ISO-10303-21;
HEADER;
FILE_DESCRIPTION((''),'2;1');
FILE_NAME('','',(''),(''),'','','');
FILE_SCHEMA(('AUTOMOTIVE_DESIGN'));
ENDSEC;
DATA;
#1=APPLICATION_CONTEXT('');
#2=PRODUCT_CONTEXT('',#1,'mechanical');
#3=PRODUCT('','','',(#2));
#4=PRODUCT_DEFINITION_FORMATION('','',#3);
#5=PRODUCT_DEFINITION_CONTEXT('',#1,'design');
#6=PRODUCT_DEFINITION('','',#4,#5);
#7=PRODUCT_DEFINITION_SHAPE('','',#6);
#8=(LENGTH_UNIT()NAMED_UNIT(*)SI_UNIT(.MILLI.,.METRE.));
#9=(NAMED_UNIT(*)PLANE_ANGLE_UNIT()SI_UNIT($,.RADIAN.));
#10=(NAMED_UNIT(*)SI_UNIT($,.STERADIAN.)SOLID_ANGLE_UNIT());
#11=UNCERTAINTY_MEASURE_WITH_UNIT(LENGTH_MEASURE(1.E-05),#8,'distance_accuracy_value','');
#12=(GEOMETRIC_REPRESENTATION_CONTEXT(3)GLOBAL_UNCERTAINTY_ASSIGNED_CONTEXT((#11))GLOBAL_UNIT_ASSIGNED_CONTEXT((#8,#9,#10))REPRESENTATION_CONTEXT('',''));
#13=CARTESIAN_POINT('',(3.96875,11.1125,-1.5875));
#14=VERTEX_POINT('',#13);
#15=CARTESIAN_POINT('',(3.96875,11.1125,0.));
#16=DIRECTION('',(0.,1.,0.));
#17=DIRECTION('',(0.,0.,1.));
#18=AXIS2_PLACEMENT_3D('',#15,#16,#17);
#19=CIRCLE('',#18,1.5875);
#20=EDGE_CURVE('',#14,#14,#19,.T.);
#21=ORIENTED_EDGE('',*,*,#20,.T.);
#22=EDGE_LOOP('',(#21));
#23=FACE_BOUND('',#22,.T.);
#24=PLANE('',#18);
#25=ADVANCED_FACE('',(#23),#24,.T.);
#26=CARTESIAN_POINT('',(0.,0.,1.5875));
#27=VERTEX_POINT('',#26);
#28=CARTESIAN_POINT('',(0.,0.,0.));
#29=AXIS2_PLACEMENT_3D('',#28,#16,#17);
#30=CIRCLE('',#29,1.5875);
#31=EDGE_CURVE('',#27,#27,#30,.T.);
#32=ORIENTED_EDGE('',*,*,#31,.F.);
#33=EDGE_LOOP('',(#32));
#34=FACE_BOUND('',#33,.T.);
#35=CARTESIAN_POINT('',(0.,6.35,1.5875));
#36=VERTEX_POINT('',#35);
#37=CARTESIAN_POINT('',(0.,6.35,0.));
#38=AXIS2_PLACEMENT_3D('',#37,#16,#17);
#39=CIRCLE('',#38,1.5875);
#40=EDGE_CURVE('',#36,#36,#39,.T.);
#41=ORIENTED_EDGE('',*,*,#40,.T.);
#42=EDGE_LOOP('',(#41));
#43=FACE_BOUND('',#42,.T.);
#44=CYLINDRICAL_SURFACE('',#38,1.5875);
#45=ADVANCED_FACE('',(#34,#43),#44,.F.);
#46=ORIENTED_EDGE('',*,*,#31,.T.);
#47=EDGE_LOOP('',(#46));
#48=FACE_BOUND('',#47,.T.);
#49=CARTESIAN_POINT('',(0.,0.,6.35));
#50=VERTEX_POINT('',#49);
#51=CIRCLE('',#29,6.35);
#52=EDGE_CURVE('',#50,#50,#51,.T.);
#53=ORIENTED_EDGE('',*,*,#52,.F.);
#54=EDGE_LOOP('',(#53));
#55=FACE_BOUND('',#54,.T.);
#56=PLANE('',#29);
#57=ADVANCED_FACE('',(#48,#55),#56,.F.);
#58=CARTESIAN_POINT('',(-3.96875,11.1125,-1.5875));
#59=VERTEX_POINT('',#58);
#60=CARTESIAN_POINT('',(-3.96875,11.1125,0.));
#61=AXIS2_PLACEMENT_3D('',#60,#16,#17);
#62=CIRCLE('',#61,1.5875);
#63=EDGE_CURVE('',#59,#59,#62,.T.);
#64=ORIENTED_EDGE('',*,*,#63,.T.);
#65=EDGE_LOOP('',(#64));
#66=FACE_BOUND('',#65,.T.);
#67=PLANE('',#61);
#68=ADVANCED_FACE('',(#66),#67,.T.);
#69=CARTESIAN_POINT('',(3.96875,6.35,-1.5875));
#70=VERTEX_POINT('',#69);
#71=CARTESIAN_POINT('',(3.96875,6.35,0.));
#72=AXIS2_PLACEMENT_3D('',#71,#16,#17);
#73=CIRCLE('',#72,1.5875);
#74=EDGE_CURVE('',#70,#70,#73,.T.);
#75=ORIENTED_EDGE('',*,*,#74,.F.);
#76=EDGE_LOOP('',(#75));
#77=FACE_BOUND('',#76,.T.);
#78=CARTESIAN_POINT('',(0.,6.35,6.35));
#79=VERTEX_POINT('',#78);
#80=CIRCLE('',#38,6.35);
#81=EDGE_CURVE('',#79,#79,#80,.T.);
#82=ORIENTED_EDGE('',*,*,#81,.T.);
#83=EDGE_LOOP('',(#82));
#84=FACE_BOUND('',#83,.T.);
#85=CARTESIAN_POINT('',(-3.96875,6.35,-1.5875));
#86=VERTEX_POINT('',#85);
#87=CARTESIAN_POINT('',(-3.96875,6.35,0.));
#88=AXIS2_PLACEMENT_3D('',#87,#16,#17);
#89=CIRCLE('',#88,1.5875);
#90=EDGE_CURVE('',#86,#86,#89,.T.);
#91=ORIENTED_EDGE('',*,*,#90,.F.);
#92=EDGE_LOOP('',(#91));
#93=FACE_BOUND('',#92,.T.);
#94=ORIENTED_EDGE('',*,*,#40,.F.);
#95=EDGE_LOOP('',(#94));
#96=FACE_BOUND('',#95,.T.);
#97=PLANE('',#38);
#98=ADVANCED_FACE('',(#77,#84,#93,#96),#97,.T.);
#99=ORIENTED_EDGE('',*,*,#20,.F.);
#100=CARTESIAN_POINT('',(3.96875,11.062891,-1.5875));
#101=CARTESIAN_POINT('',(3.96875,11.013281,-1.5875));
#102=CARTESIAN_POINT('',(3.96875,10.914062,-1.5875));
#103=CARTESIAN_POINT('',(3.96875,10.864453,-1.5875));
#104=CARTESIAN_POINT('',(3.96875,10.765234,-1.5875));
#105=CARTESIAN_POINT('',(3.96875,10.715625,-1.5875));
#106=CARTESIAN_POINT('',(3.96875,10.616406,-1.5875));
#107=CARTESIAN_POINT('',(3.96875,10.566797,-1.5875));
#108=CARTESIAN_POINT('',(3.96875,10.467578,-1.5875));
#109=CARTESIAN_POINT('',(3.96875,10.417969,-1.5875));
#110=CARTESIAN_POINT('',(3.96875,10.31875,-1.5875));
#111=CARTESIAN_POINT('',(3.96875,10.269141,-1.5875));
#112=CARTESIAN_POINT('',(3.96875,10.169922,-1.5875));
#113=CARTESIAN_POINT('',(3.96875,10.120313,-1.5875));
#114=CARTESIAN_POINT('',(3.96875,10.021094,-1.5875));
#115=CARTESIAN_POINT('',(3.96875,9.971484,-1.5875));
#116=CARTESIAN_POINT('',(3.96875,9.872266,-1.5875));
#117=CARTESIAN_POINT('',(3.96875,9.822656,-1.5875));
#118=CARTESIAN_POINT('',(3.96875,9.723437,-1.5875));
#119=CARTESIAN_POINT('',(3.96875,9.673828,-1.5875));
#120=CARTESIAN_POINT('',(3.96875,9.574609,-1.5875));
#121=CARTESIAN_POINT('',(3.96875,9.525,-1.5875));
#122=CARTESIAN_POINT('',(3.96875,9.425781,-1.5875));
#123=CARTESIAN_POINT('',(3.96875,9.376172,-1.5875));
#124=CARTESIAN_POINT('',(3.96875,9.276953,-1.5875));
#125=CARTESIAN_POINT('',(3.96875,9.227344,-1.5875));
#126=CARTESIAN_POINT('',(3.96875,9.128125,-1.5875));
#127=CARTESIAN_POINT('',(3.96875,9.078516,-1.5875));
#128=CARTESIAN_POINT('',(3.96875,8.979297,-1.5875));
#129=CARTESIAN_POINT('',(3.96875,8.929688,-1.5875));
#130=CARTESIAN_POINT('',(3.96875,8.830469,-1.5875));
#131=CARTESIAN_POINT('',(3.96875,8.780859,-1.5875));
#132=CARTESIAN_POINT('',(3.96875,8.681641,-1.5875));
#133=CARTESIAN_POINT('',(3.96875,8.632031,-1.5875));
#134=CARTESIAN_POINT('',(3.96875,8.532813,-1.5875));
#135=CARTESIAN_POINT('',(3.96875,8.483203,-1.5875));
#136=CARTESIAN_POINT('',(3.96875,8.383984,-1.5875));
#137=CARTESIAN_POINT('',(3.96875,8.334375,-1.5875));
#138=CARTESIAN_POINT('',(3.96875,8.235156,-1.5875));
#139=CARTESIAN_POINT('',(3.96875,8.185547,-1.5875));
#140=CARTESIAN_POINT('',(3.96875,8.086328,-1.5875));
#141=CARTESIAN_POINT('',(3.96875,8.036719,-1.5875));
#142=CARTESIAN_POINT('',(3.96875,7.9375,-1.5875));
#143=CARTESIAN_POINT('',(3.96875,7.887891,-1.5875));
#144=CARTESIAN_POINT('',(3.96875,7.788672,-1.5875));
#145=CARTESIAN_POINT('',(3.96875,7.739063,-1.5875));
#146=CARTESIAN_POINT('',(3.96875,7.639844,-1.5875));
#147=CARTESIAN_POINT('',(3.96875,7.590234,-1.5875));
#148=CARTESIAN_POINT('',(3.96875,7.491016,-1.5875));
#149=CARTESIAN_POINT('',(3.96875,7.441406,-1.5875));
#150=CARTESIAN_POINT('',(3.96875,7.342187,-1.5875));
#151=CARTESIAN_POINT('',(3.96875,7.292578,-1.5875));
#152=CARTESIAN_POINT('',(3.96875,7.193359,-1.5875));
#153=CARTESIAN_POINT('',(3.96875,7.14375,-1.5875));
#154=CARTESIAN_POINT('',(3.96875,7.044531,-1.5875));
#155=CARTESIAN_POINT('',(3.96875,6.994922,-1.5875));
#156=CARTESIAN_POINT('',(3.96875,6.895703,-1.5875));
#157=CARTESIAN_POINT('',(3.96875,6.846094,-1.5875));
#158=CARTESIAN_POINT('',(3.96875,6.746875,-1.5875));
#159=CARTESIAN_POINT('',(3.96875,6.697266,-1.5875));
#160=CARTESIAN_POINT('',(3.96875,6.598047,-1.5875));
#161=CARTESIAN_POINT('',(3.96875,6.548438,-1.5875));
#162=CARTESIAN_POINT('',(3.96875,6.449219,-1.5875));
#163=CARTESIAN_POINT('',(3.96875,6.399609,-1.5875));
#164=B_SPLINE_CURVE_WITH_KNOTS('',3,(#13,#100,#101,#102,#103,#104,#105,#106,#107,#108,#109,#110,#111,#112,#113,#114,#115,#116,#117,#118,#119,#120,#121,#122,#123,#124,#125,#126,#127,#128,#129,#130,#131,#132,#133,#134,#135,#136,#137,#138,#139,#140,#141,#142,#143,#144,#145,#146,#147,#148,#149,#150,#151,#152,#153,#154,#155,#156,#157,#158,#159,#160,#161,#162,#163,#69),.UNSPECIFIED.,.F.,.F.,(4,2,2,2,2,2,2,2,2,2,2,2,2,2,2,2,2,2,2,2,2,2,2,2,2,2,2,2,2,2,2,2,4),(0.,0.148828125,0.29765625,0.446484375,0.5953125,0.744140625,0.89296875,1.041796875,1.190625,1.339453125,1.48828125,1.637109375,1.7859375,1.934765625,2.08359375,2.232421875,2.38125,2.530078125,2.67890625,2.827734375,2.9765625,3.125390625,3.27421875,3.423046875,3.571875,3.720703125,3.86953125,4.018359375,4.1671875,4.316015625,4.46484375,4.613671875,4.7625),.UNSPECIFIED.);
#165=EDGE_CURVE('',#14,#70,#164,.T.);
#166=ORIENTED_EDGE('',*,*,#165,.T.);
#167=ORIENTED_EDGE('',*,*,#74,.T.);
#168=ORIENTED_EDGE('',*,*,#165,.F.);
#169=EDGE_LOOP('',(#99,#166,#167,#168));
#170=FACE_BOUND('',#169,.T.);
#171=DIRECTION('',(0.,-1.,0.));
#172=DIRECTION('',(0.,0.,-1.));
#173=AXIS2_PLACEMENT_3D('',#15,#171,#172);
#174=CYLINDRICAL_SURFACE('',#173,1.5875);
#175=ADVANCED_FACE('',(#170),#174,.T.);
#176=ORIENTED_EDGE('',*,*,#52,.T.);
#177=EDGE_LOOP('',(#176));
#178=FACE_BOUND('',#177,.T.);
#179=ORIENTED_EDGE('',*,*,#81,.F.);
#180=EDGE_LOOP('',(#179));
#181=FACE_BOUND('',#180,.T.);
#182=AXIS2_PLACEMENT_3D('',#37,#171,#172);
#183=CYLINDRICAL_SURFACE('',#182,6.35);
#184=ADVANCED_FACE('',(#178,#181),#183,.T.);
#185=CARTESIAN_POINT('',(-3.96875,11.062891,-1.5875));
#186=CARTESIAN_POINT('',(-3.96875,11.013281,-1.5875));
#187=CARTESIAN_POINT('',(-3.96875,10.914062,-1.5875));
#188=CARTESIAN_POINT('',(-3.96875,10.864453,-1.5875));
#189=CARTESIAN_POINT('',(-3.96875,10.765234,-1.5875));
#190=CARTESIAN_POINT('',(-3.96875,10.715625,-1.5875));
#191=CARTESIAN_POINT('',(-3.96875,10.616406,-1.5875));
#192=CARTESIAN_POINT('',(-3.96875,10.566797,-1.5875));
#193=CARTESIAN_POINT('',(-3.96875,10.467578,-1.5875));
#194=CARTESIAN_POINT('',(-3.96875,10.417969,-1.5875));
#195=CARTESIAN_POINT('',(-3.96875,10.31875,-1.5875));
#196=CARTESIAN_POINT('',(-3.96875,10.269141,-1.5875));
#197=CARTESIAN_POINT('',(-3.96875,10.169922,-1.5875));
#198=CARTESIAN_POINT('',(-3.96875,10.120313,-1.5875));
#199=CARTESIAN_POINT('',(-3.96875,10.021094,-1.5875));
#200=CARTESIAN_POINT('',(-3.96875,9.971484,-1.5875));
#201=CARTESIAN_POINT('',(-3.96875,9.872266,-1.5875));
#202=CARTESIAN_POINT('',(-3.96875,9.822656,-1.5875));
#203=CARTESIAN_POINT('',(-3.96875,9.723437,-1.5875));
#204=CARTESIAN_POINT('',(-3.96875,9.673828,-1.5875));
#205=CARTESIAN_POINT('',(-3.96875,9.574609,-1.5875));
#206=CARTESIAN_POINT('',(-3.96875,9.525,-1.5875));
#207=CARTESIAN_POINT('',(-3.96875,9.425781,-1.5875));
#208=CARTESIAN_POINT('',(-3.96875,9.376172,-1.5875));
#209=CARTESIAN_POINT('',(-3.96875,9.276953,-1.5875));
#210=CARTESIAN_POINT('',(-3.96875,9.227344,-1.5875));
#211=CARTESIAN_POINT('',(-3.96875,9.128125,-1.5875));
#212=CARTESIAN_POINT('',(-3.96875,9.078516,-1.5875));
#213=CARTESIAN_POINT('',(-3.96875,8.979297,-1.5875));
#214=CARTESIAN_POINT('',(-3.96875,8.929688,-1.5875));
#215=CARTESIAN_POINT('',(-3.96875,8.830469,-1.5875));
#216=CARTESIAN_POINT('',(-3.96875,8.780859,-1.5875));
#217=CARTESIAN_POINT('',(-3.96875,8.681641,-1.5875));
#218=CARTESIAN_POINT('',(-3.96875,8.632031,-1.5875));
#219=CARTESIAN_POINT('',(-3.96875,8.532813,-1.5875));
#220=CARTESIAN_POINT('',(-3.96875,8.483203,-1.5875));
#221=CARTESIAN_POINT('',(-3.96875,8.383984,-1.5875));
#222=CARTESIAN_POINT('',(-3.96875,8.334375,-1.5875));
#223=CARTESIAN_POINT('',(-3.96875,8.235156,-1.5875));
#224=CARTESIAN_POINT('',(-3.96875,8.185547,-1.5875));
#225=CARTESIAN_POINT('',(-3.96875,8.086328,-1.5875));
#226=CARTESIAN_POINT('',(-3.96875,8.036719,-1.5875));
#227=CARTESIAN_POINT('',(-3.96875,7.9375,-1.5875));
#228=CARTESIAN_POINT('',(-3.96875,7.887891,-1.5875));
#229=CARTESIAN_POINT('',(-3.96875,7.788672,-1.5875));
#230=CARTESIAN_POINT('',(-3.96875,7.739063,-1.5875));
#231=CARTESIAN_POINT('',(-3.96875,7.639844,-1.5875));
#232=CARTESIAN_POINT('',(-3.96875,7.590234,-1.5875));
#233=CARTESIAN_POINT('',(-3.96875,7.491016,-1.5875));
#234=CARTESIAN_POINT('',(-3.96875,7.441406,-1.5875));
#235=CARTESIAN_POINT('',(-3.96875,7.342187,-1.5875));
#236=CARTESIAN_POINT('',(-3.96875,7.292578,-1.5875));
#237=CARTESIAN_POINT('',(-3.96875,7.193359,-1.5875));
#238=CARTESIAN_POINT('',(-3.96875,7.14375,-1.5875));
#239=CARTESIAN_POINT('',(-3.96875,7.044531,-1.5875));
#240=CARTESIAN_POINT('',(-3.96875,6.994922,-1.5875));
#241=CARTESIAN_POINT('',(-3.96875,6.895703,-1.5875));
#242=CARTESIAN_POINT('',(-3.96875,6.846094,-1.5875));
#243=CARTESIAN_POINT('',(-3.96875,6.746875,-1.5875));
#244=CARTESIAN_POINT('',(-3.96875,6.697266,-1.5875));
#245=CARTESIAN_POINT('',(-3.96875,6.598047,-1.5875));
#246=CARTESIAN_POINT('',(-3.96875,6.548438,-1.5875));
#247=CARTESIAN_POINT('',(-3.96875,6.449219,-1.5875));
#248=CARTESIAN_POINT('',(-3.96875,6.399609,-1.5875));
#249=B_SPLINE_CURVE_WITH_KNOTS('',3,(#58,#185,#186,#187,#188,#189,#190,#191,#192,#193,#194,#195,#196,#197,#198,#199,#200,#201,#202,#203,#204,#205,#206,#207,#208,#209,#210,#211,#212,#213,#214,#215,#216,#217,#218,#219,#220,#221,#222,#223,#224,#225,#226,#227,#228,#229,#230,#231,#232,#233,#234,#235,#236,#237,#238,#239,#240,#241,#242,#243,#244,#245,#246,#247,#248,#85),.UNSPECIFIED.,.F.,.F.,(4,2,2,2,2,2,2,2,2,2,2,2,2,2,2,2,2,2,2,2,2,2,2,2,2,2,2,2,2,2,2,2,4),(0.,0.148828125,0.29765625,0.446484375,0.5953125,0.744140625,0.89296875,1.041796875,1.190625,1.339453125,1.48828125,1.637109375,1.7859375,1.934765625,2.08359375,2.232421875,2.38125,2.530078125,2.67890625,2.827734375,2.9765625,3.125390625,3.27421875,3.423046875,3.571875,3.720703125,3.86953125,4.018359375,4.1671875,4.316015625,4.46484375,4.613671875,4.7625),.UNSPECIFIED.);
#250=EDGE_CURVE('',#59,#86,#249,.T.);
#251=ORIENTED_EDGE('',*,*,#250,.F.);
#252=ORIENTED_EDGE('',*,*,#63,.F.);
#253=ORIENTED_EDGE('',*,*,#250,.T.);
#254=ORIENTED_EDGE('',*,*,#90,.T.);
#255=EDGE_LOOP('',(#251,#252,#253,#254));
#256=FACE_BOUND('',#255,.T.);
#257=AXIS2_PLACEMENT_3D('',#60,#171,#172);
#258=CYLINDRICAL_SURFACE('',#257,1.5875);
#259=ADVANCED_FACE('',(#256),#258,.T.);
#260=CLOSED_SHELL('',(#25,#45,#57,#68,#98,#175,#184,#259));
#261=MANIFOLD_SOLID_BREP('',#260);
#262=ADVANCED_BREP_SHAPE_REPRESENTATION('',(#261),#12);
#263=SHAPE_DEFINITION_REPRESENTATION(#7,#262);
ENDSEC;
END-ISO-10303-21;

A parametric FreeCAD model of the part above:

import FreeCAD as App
import Part
import Sketcher

V = App.Vector
Q = App.Units.Quantity

doc = App.newDocument("Part")
params = doc.addObject("Spreadsheet::Sheet", "Params")
for row, (alias, value) in enumerate([
    ("sketch1_diameter", "0.5 in"),
    ("pad1_length", "0.25 in"),
    ("sketch2_diameter", "0.125 in"),
    ("hole_diameter", "0.125 in"),
    ("sketch3_diameter", "0.125 in"),
    ("pad2_length", "0.1875 in"),
], start=1):
    params.set(f"A{row}", alias)
    params.set(f"B{row}", "=" + value)
    params.setAlias(f"B{row}", alias)

body = doc.addObject("PartDesign::Body", "Body")

# Sketch on XZ plane
sketch1 = body.newObject("Sketcher::SketchObject", "Sketch")
sketch1.AttachmentSupport = (doc.getObject("XZ_Plane"), [""])
sketch1.MapMode = "FlatFace"
sketch1.addGeometry(Part.Circle(V(0, 0, 0), V(0, 0, 1), 6.35), False)
sketch1.addConstraint(Sketcher.Constraint("Coincident", 0, 3, -1, 1))
sketch1.addConstraint(Sketcher.Constraint("Diameter", 0, Q("0.5 in")))
sketch1.setExpression("Constraints[1]", "Params.sketch1_diameter")
pad1 = body.newObject("PartDesign::Pad", "Pad")
pad1.Profile = sketch1
pad1.setExpression("Length", "Params.pad1_length")
pad1.Reversed = True

# Sketch on XZ plane
sketch2 = body.newObject("Sketcher::SketchObject", "Sketch001")
sketch2.AttachmentSupport = (doc.getObject("XZ_Plane"), [""])
sketch2.MapMode = "FlatFace"
sketch2.AttachmentOffset = App.Placement(V(0, 0, -0.25 * 25.4), App.Rotation())
sketch2.addGeometry(Part.Circle(V(0, 0, 0), V(0, 0, 1), 1.5875), False)
sketch2.addConstraint(Sketcher.Constraint("Coincident", 0, 3, -1, 1))
sketch2.addConstraint(Sketcher.Constraint("Diameter", 0, Q("0.125 in")))
sketch2.setExpression("Constraints[1]", "Params.sketch2_diameter")
doc.recompute()
hole = body.newObject("PartDesign::Hole", "Hole")
hole.Profile = sketch2
hole.ThreadType = "None"
hole.setExpression("Diameter", "Params.hole_diameter")
hole.DepthType = "ThroughAll"
hole.Reversed = True

# Sketch on XZ plane
sketch3 = body.newObject("Sketcher::SketchObject", "Sketch002")
sketch3.AttachmentSupport = (doc.getObject("XZ_Plane"), [""])
sketch3.MapMode = "FlatFace"
sketch3.AttachmentOffset = App.Placement(V(0, 0, -0.25 * 25.4), App.Rotation())
sketch3.addGeometry(Part.Circle(V(3.96875, 0, 0), V(0, 0, 1), 1.5875), False)
sketch3.addGeometry(Part.Circle(V(-3.96875, 0, 0), V(0, 0, 1), 1.5875), False)
sketch3.addConstraint(Sketcher.Constraint("Equal", 0, 1))
sketch3.addConstraint(Sketcher.Constraint("Symmetric", 0, 3, 1, 3, -1, 1))
sketch3.addConstraint(Sketcher.Constraint("PointOnObject", 0, 3, -1))
sketch3.addConstraint(Sketcher.Constraint("Diameter", 0, Q("0.125 in")))
sketch3.addConstraint(Sketcher.Constraint("DistanceX", -1, 1, 0, 3, Q("0.15625 in")))
sketch3.setExpression("Constraints[3]", "Params.sketch3_diameter")
pad2 = body.newObject("PartDesign::Pad", "Pad001")
pad2.Profile = sketch3
pad2.setExpression("Length", "Params.pad2_length")
pad2.Reversed = True

doc.recompute()
